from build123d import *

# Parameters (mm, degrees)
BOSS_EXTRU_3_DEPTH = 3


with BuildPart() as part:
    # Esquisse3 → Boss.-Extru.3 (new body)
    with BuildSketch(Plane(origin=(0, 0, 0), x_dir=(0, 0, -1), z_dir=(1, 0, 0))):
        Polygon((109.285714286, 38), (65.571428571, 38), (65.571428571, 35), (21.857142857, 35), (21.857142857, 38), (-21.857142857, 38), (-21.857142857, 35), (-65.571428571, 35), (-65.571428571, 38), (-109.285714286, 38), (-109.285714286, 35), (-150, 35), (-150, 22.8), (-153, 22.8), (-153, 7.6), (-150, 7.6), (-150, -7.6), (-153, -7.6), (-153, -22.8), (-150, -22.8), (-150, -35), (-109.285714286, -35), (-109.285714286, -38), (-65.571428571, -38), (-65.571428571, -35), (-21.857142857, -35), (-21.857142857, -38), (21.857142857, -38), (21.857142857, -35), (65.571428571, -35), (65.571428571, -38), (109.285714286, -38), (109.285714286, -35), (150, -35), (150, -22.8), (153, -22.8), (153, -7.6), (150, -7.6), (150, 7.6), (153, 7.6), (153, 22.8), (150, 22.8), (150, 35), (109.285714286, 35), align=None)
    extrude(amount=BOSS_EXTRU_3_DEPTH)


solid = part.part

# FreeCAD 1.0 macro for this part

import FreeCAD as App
import Part
import Sketcher
from FreeCAD import Vector

doc = App.newDocument("Part")
body = doc.addObject("PartDesign::Body", "Body")

sketch1 = doc.addObject("Sketcher::SketchObject", "Sketch")
body.addObject(sketch1)
sketch1.AttachmentSupport = (doc.YZ_Plane, [""])
sketch1.MapMode = "FlatFace"
sketch1.addGeometry([
    Part.LineSegment(Vector(38, -109.285714, 0), Vector(38, -65.571429, 0)),
    Part.LineSegment(Vector(38, -65.571429, 0), Vector(35, -65.571429, 0)),
    Part.LineSegment(Vector(35, -65.571429, 0), Vector(35, -21.857143, 0)),
    Part.LineSegment(Vector(35, -21.857143, 0), Vector(38, -21.857143, 0)),
    Part.LineSegment(Vector(38, -21.857143, 0), Vector(38, 21.857143, 0)),
    Part.LineSegment(Vector(38, 21.857143, 0), Vector(35, 21.857143, 0)),
    Part.LineSegment(Vector(35, 21.857143, 0), Vector(35, 65.571429, 0)),
    Part.LineSegment(Vector(35, 65.571429, 0), Vector(38, 65.571429, 0)),
    Part.LineSegment(Vector(38, 65.571429, 0), Vector(38, 109.285714, 0)),
    Part.LineSegment(Vector(38, 109.285714, 0), Vector(35, 109.285714, 0)),
    Part.LineSegment(Vector(35, 109.285714, 0), Vector(35, 150, 0)),
    Part.LineSegment(Vector(35, 150, 0), Vector(22.8, 150, 0)),
    Part.LineSegment(Vector(22.8, 150, 0), Vector(22.8, 153, 0)),
    Part.LineSegment(Vector(22.8, 153, 0), Vector(7.6, 153, 0)),
    Part.LineSegment(Vector(7.6, 153, 0), Vector(7.6, 150, 0)),
    Part.LineSegment(Vector(7.6, 150, 0), Vector(-7.6, 150, 0)),
    Part.LineSegment(Vector(-7.6, 150, 0), Vector(-7.6, 153, 0)),
    Part.LineSegment(Vector(-7.6, 153, 0), Vector(-22.8, 153, 0)),
    Part.LineSegment(Vector(-22.8, 153, 0), Vector(-22.8, 150, 0)),
    Part.LineSegment(Vector(-22.8, 150, 0), Vector(-35, 150, 0)),
    Part.LineSegment(Vector(-35, 150, 0), Vector(-35, 109.285714, 0)),
    Part.LineSegment(Vector(-35, 109.285714, 0), Vector(-38, 109.285714, 0)),
    Part.LineSegment(Vector(-38, 109.285714, 0), Vector(-38, 65.571429, 0)),
    Part.LineSegment(Vector(-38, 65.571429, 0), Vector(-35, 65.571429, 0)),
    Part.LineSegment(Vector(-35, 65.571429, 0), Vector(-35, 21.857143, 0)),
    Part.LineSegment(Vector(-35, 21.857143, 0), Vector(-38, 21.857143, 0)),
    Part.LineSegment(Vector(-38, 21.857143, 0), Vector(-38, -21.857143, 0)),
    Part.LineSegment(Vector(-38, -21.857143, 0), Vector(-35, -21.857143, 0)),
    Part.LineSegment(Vector(-35, -21.857143, 0), Vector(-35, -65.571429, 0)),
    Part.LineSegment(Vector(-35, -65.571429, 0), Vector(-38, -65.571429, 0)),
    Part.LineSegment(Vector(-38, -65.571429, 0), Vector(-38, -109.285714, 0)),
    Part.LineSegment(Vector(-38, -109.285714, 0), Vector(-35, -109.285714, 0)),
    Part.LineSegment(Vector(-35, -109.285714, 0), Vector(-35, -150, 0)),
    Part.LineSegment(Vector(-35, -150, 0), Vector(-22.8, -150, 0)),
    Part.LineSegment(Vector(-22.8, -150, 0), Vector(-22.8, -153, 0)),
    Part.LineSegment(Vector(-22.8, -153, 0), Vector(-7.6, -153, 0)),
    Part.LineSegment(Vector(-7.6, -153, 0), Vector(-7.6, -150, 0)),
    Part.LineSegment(Vector(-7.6, -150, 0), Vector(7.6, -150, 0)),
    Part.LineSegment(Vector(7.6, -150, 0), Vector(7.6, -153, 0)),
    Part.LineSegment(Vector(7.6, -153, 0), Vector(22.8, -153, 0)),
    Part.LineSegment(Vector(22.8, -153, 0), Vector(22.8, -150, 0)),
    Part.LineSegment(Vector(22.8, -150, 0), Vector(35, -150, 0)),
    Part.LineSegment(Vector(35, -150, 0), Vector(35, -109.285714, 0)),
    Part.LineSegment(Vector(35, -109.285714, 0), Vector(38, -109.285714, 0)),
], False)
sketch1.addConstraint([
    Sketcher.Constraint("Coincident", 0, 2, 1, 1),
    Sketcher.Constraint("Coincident", 1, 2, 2, 1),
    Sketcher.Constraint("Coincident", 2, 2, 3, 1),
    Sketcher.Constraint("Coincident", 3, 2, 4, 1),
    Sketcher.Constraint("Coincident", 4, 2, 5, 1),
    Sketcher.Constraint("Coincident", 5, 2, 6, 1),
    Sketcher.Constraint("Coincident", 6, 2, 7, 1),
    Sketcher.Constraint("Coincident", 7, 2, 8, 1),
    Sketcher.Constraint("Coincident", 8, 2, 9, 1),
    Sketcher.Constraint("Coincident", 9, 2, 10, 1),
    Sketcher.Constraint("Coincident", 10, 2, 11, 1),
    Sketcher.Constraint("Coincident", 11, 2, 12, 1),
    Sketcher.Constraint("Coincident", 12, 2, 13, 1),
    Sketcher.Constraint("Coincident", 13, 2, 14, 1),
    Sketcher.Constraint("Coincident", 14, 2, 15, 1),
    Sketcher.Constraint("Coincident", 15, 2, 16, 1),
    Sketcher.Constraint("Coincident", 16, 2, 17, 1),
    Sketcher.Constraint("Coincident", 17, 2, 18, 1),
    Sketcher.Constraint("Coincident", 18, 2, 19, 1),
    Sketcher.Constraint("Coincident", 19, 2, 20, 1),
    Sketcher.Constraint("Coincident", 20, 2, 21, 1),
    Sketcher.Constraint("Coincident", 21, 2, 22, 1),
    Sketcher.Constraint("Coincident", 22, 2, 23, 1),
    Sketcher.Constraint("Coincident", 23, 2, 24, 1),
    Sketcher.Constraint("Coincident", 24, 2, 25, 1),
    Sketcher.Constraint("Coincident", 25, 2, 26, 1),
    Sketcher.Constraint("Coincident", 26, 2, 27, 1),
    Sketcher.Constraint("Coincident", 27, 2, 28, 1),
    Sketcher.Constraint("Coincident", 28, 2, 29, 1),
    Sketcher.Constraint("Coincident", 29, 2, 30, 1),
    Sketcher.Constraint("Coincident", 30, 2, 31, 1),
    Sketcher.Constraint("Coincident", 31, 2, 32, 1),
    Sketcher.Constraint("Coincident", 32, 2, 33, 1),
    Sketcher.Constraint("Coincident", 33, 2, 34, 1),
    Sketcher.Constraint("Coincident", 34, 2, 35, 1),
    Sketcher.Constraint("Coincident", 35, 2, 36, 1),
    Sketcher.Constraint("Coincident", 36, 2, 37, 1),
    Sketcher.Constraint("Coincident", 37, 2, 38, 1),
    Sketcher.Constraint("Coincident", 38, 2, 39, 1),
    Sketcher.Constraint("Coincident", 39, 2, 40, 1),
    Sketcher.Constraint("Coincident", 40, 2, 41, 1),
    Sketcher.Constraint("Coincident", 41, 2, 42, 1),
    Sketcher.Constraint("Coincident", 42, 2, 43, 1),
    Sketcher.Constraint("Coincident", 43, 2, 0, 1),
    Sketcher.Constraint("Vertical", 0),
    Sketcher.Constraint("Horizontal", 1),
    Sketcher.Constraint("Vertical", 2),
    Sketcher.Constraint("Horizontal", 3),
    Sketcher.Constraint("Vertical", 4),
    Sketcher.Constraint("Horizontal", 5),
    Sketcher.Constraint("Vertical", 6),
    Sketcher.Constraint("Horizontal", 7),
    Sketcher.Constraint("Vertical", 8),
    Sketcher.Constraint("Horizontal", 9),
    Sketcher.Constraint("Vertical", 10),
    Sketcher.Constraint("Horizontal", 11),
    Sketcher.Constraint("Vertical", 12),
    Sketcher.Constraint("Horizontal", 13),
    Sketcher.Constraint("Vertical", 14),
    Sketcher.Constraint("Horizontal", 15),
    Sketcher.Constraint("Vertical", 16),
    Sketcher.Constraint("Horizontal", 17),
    Sketcher.Constraint("Vertical", 18),
    Sketcher.Constraint("Horizontal", 19),
    Sketcher.Constraint("Vertical", 20),
    Sketcher.Constraint("Horizontal", 21),
    Sketcher.Constraint("Vertical", 22),
    Sketcher.Constraint("Horizontal", 23),
    Sketcher.Constraint("Vertical", 24),
    Sketcher.Constraint("Horizontal", 25),
    Sketcher.Constraint("Vertical", 26),
    Sketcher.Constraint("Horizontal", 27),
    Sketcher.Constraint("Vertical", 28),
    Sketcher.Constraint("Horizontal", 29),
    Sketcher.Constraint("Vertical", 30),
    Sketcher.Constraint("Horizontal", 31),
    Sketcher.Constraint("Vertical", 32),
    Sketcher.Constraint("Horizontal", 33),
    Sketcher.Constraint("Vertical", 34),
    Sketcher.Constraint("Horizontal", 35),
    Sketcher.Constraint("Vertical", 36),
    Sketcher.Constraint("Horizontal", 37),
    Sketcher.Constraint("Vertical", 38),
    Sketcher.Constraint("Horizontal", 39),
    Sketcher.Constraint("Vertical", 40),
    Sketcher.Constraint("Horizontal", 41),
    Sketcher.Constraint("Vertical", 42),
    Sketcher.Constraint("Horizontal", 43),
    Sketcher.Constraint("Symmetric", 0, 2, 22, 2, -1, 1),
    Sketcher.Constraint("Symmetric", 2, 2, 24, 2, -1, 1),
    Sketcher.Constraint("Symmetric", 4, 2, 26, 2, -1, 1),
    Sketcher.Constraint("Symmetric", 6, 2, 28, 2, -1, 1),
    Sketcher.Constraint("Symmetric", 8, 2, 30, 2, -1, 1),
    Sketcher.Constraint("Symmetric", 10, 2, 32, 2, -1, 1),
    Sketcher.Constraint("Symmetric", 12, 2, 34, 2, -1, 1),
    Sketcher.Constraint("Symmetric", 14, 2, 36, 2, -1, 1),
    Sketcher.Constraint("Symmetric", 16, 2, 38, 2, -1, 1),
    Sketcher.Constraint("Symmetric", 18, 2, 40, 2, -1, 1),
    Sketcher.Constraint("Symmetric", 20, 2, 42, 2, -1, 1),
    Sketcher.Constraint("Symmetric", 13, 2, 16, 2, -2),
    Sketcher.Constraint("Symmetric", 11, 2, 18, 2, -2),
    Sketcher.Constraint("Symmetric", 9, 2, 20, 2, -2),
    Sketcher.Constraint("Symmetric", 7, 2, 22, 2, -2),
    Sketcher.Constraint("Symmetric", 5, 2, 24, 2, -2),
    Sketcher.Constraint("Horizontal", 11, 2, 14, 2),
    Sketcher.Constraint("Vertical", 0, 2, 3, 2),
    Sketcher.Constraint("Vertical", 6, 2, 9, 2),
    Sketcher.Constraint("Equal", 13, 15),
    Sketcher.Constraint("Equal", 0, 2),
    Sketcher.Constraint("Equal", 2, 4),
    Sketcher.Constraint("Equal", 43, 12),
    Sketcher.Constraint("DistanceX", 1, 2, 1, 1, 3.0),
    Sketcher.Constraint("DistanceX", 11, 2, 11, 1, 12.2),
    Sketcher.Constraint("DistanceX", 13, 2, 13, 1, 15.2),
    Sketcher.Constraint("DistanceY", -1, 1, 10, 2, 150.0),
    Sketcher.Constraint("DistanceY", 0, 1, 0, 2, 43.714286),
])
pad1 = doc.addObject("PartDesign::Pad", "Pad")
body.addObject(pad1)
pad1.Profile = sketch1
pad1.Length = 3

doc.recompute()
